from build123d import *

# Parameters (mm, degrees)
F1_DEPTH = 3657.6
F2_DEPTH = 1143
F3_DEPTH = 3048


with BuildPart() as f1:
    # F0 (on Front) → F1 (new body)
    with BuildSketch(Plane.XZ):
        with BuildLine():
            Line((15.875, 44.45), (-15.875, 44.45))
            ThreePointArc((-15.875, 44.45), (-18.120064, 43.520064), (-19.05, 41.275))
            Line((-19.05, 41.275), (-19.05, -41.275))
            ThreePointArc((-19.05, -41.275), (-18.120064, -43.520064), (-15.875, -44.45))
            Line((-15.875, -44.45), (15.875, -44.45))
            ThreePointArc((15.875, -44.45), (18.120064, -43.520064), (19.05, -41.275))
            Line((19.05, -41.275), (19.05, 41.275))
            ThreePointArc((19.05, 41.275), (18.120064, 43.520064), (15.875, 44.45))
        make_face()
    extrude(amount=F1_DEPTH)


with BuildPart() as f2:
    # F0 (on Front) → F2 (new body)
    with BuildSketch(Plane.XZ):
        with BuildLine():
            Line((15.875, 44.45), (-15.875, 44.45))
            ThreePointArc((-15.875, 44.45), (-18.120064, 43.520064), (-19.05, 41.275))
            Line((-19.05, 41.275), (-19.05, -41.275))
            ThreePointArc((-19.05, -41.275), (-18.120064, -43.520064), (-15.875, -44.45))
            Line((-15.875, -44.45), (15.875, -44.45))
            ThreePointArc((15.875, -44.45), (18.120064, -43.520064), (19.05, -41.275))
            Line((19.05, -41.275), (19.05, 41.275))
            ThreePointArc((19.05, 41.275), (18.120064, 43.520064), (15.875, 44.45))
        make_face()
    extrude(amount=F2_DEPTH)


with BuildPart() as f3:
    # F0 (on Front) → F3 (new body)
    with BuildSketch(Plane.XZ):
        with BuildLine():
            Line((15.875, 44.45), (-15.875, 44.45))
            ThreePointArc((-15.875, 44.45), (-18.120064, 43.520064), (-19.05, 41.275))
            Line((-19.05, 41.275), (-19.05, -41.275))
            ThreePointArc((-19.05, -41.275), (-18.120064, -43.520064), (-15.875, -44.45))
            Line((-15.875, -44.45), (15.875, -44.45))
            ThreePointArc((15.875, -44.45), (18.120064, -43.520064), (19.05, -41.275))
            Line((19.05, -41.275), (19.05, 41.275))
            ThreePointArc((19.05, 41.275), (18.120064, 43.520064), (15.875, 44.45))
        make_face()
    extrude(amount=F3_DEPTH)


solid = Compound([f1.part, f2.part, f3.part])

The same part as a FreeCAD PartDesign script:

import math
import FreeCAD as App
import Part
import Sketcher

V = App.Vector
Q = App.Units.Quantity

doc = App.newDocument("Part")
body = doc.addObject("PartDesign::Body", "Body")

# Sketch on XZ plane
sketch1 = doc.addObject("Sketcher::SketchObject", "Sketch")
body.addObject(sketch1)
sketch1.AttachmentSupport = (doc.XZ_Plane, [""])
sketch1.MapMode = "FlatFace"
sketch1.addGeometry(Part.LineSegment(V(15.9, 44.5, 0), V(-15.9, 44.5, 0)), False)
sketch1.addGeometry(Part.ArcOfCircle(Part.Circle(V(-15.9, 41.3, 0), V(0, 0, 1), 3.2), math.radians(90), math.radians(180)), False)
sketch1.addGeometry(Part.LineSegment(V(-19.1, 41.3, 0), V(-19.1, -41.3, 0)), False)
sketch1.addGeometry(Part.ArcOfCircle(Part.Circle(V(-15.9, -41.3, 0), V(0, 0, 1), 3.2), math.radians(-180), math.radians(-90)), False)
sketch1.addGeometry(Part.LineSegment(V(-15.9, -44.5, 0), V(15.9, -44.5, 0)), False)
sketch1.addGeometry(Part.ArcOfCircle(Part.Circle(V(15.9, -41.3, 0), V(0, 0, 1), 3.2), math.radians(-90), math.radians(0)), False)
sketch1.addGeometry(Part.LineSegment(V(19.1, -41.3, 0), V(19.1, 41.3, 0)), False)
sketch1.addGeometry(Part.ArcOfCircle(Part.Circle(V(15.9, 41.3, 0), V(0, 0, 1), 3.2), math.radians(0), math.radians(90)), False)
sketch1.addConstraint(Sketcher.Constraint("Tangent", 0, 2, 1, 1))
sketch1.addConstraint(Sketcher.Constraint("Tangent", 1, 2, 2, 1))
sketch1.addConstraint(Sketcher.Constraint("Tangent", 2, 2, 3, 1))
sketch1.addConstraint(Sketcher.Constraint("Tangent", 3, 2, 4, 1))
sketch1.addConstraint(Sketcher.Constraint("Tangent", 4, 2, 5, 1))
sketch1.addConstraint(Sketcher.Constraint("Tangent", 5, 2, 6, 1))
sketch1.addConstraint(Sketcher.Constraint("Tangent", 6, 2, 7, 1))
sketch1.addConstraint(Sketcher.Constraint("Tangent", 7, 2, 0, 1))
sketch1.addConstraint(Sketcher.Constraint("Horizontal", 0))
sketch1.addConstraint(Sketcher.Constraint("Vertical", 2))
sketch1.addConstraint(Sketcher.Constraint("Horizontal", 4))
sketch1.addConstraint(Sketcher.Constraint("Vertical", 6))
sketch1.addConstraint(Sketcher.Constraint("Equal", 1, 3))
sketch1.addConstraint(Sketcher.Constraint("Equal", 3, 5))
sketch1.addConstraint(Sketcher.Constraint("Equal", 5, 7))
sketch1.addConstraint(Sketcher.Constraint("Symmetric", 1, 3, 5, 3, -1, 1))
sketch1.addConstraint(Sketcher.Constraint("Radius", 1, Q("0.125 in")))
sketch1.addConstraint(Sketcher.Constraint("DistanceX", 0, 2, 0, 1, Q("1.25 in")))
sketch1.addConstraint(Sketcher.Constraint("DistanceY", 2, 2, 2, 1, Q("3.25 in")))
pad1 = doc.addObject("PartDesign::Pad", "Pad")
body.addObject(pad1)
pad1.Profile = sketch1
pad1.Length = Q("144 in")
body2 = doc.addObject("PartDesign::Body", "Body001")

# Sketch on XZ plane
sketch2 = doc.addObject("Sketcher::SketchObject", "Sketch001")
body2.addObject(sketch2)
sketch2.AttachmentSupport = (doc.getObject("XZ_Plane001"), [""])
sketch2.MapMode = "FlatFace"
sketch2.addGeometry(Part.LineSegment(V(15.9, 44.5, 0), V(-15.9, 44.5, 0)), False)
sketch2.addGeometry(Part.ArcOfCircle(Part.Circle(V(-15.9, 41.3, 0), V(0, 0, 1), 3.2), math.radians(90), math.radians(180)), False)
sketch2.addGeometry(Part.LineSegment(V(-19.1, 41.3, 0), V(-19.1, -41.3, 0)), False)
sketch2.addGeometry(Part.ArcOfCircle(Part.Circle(V(-15.9, -41.3, 0), V(0, 0, 1), 3.2), math.radians(-180), math.radians(-90)), False)
sketch2.addGeometry(Part.LineSegment(V(-15.9, -44.5, 0), V(15.9, -44.5, 0)), False)
sketch2.addGeometry(Part.ArcOfCircle(Part.Circle(V(15.9, -41.3, 0), V(0, 0, 1), 3.2), math.radians(-90), math.radians(0)), False)
sketch2.addGeometry(Part.LineSegment(V(19.1, -41.3, 0), V(19.1, 41.3, 0)), False)
sketch2.addGeometry(Part.ArcOfCircle(Part.Circle(V(15.9, 41.3, 0), V(0, 0, 1), 3.2), math.radians(0), math.radians(90)), False)
sketch2.addConstraint(Sketcher.Constraint("Tangent", 0, 2, 1, 1))
sketch2.addConstraint(Sketcher.Constraint("Tangent", 1, 2, 2, 1))
sketch2.addConstraint(Sketcher.Constraint("Tangent", 2, 2, 3, 1))
sketch2.addConstraint(Sketcher.Constraint("Tangent", 3, 2, 4, 1))
sketch2.addConstraint(Sketcher.Constraint("Tangent", 4, 2, 5, 1))
sketch2.addConstraint(Sketcher.Constraint("Tangent", 5, 2, 6, 1))
sketch2.addConstraint(Sketcher.Constraint("Tangent", 6, 2, 7, 1))
sketch2.addConstraint(Sketcher.Constraint("Tangent", 7, 2, 0, 1))
sketch2.addConstraint(Sketcher.Constraint("Horizontal", 0))
sketch2.addConstraint(Sketcher.Constraint("Vertical", 2))
sketch2.addConstraint(Sketcher.Constraint("Horizontal", 4))
sketch2.addConstraint(Sketcher.Constraint("Vertical", 6))
sketch2.addConstraint(Sketcher.Constraint("Equal", 1, 3))
sketch2.addConstraint(Sketcher.Constraint("Equal", 3, 5))
sketch2.addConstraint(Sketcher.Constraint("Equal", 5, 7))
sketch2.addConstraint(Sketcher.Constraint("Symmetric", 1, 3, 5, 3, -1, 1))
sketch2.addConstraint(Sketcher.Constraint("Radius", 1, Q("0.125 in")))
sketch2.addConstraint(Sketcher.Constraint("DistanceX", 0, 2, 0, 1, Q("1.25 in")))
sketch2.addConstraint(Sketcher.Constraint("DistanceY", 2, 2, 2, 1, Q("3.25 in")))
pad2 = doc.addObject("PartDesign::Pad", "Pad001")
body2.addObject(pad2)
pad2.Profile = sketch2
pad2.Length = Q("45 in")
body3 = doc.addObject("PartDesign::Body", "Body002")

# Sketch on XZ plane
sketch3 = doc.addObject("Sketcher::SketchObject", "Sketch002")
body3.addObject(sketch3)
sketch3.AttachmentSupport = (doc.getObject("XZ_Plane002"), [""])
sketch3.MapMode = "FlatFace"
sketch3.addGeometry(Part.LineSegment(V(15.9, 44.5, 0), V(-15.9, 44.5, 0)), False)
sketch3.addGeometry(Part.ArcOfCircle(Part.Circle(V(-15.9, 41.3, 0), V(0, 0, 1), 3.2), math.radians(90), math.radians(180)), False)
sketch3.addGeometry(Part.LineSegment(V(-19.1, 41.3, 0), V(-19.1, -41.3, 0)), False)
sketch3.addGeometry(Part.ArcOfCircle(Part.Circle(V(-15.9, -41.3, 0), V(0, 0, 1), 3.2), math.radians(-180), math.radians(-90)), False)
sketch3.addGeometry(Part.LineSegment(V(-15.9, -44.5, 0), V(15.9, -44.5, 0)), False)
sketch3.addGeometry(Part.ArcOfCircle(Part.Circle(V(15.9, -41.3, 0), V(0, 0, 1), 3.2), math.radians(-90), math.radians(0)), False)
sketch3.addGeometry(Part.LineSegment(V(19.1, -41.3, 0), V(19.1, 41.3, 0)), False)
sketch3.addGeometry(Part.ArcOfCircle(Part.Circle(V(15.9, 41.3, 0), V(0, 0, 1), 3.2), math.radians(0), math.radians(90)), False)
sketch3.addConstraint(Sketcher.Constraint("Tangent", 0, 2, 1, 1))
sketch3.addConstraint(Sketcher.Constraint("Tangent", 1, 2, 2, 1))
sketch3.addConstraint(Sketcher.Constraint("Tangent", 2, 2, 3, 1))
sketch3.addConstraint(Sketcher.Constraint("Tangent", 3, 2, 4, 1))
sketch3.addConstraint(Sketcher.Constraint("Tangent", 4, 2, 5, 1))
sketch3.addConstraint(Sketcher.Constraint("Tangent", 5, 2, 6, 1))
sketch3.addConstraint(Sketcher.Constraint("Tangent", 6, 2, 7, 1))
sketch3.addConstraint(Sketcher.Constraint("Tangent", 7, 2, 0, 1))
sketch3.addConstraint(Sketcher.Constraint("Horizontal", 0))
sketch3.addConstraint(Sketcher.Constraint("Vertical", 2))
sketch3.addConstraint(Sketcher.Constraint("Horizontal", 4))
sketch3.addConstraint(Sketcher.Constraint("Vertical", 6))
sketch3.addConstraint(Sketcher.Constraint("Equal", 1, 3))
sketch3.addConstraint(Sketcher.Constraint("Equal", 3, 5))
sketch3.addConstraint(Sketcher.Constraint("Equal", 5, 7))
sketch3.addConstraint(Sketcher.Constraint("Symmetric", 1, 3, 5, 3, -1, 1))
sketch3.addConstraint(Sketcher.Constraint("Radius", 1, Q("0.125 in")))
sketch3.addConstraint(Sketcher.Constraint("DistanceX", 0, 2, 0, 1, Q("1.25 in")))
sketch3.addConstraint(Sketcher.Constraint("DistanceY", 2, 2, 2, 1, Q("3.25 in")))
pad3 = doc.addObject("PartDesign::Pad", "Pad002")
body3.addObject(pad3)
pad3.Profile = sketch3
pad3.Length = Q("120 in")

doc.recompute()
